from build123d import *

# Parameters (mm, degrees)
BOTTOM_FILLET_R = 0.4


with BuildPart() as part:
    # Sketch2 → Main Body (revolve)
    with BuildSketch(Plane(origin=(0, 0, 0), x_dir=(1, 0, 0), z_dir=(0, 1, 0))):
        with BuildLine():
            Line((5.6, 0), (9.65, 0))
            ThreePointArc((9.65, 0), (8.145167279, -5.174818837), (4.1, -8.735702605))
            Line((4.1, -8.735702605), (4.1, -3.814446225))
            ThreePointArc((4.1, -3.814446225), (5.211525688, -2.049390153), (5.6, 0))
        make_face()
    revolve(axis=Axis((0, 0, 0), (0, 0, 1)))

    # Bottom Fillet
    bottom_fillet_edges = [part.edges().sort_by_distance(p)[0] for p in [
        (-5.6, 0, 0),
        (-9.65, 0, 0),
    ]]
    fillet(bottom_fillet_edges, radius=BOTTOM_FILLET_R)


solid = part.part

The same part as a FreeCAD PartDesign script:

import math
import FreeCAD as App
import Part
import Sketcher

V = App.Vector


def edges_at(feature, points):
    """Names of the edges that pass closest to the given points."""
    edges = feature.Shape.Edges
    near = lambda p: min(range(len(edges)), key=lambda i: edges[i].distToShape(Part.Vertex(*p))[0])
    return sorted({f"Edge{near(p) + 1}" for p in points})

doc = App.newDocument("Part")
params = doc.addObject("Spreadsheet::Sheet", "Params")
for row, (alias, value) in enumerate([
    ("sketch1_radius", "5.6 mm"),
    ("sketch1_radius2", "9.65 mm"),
    ("revolution_angle", "360 deg"),
    ("fillet_radius", "0.4 mm"),
], start=1):
    params.set(f"A{row}", alias)
    params.set(f"B{row}", "=" + value)
    params.setAlias(f"B{row}", alias)

body = doc.addObject("PartDesign::Body", "Body")

# Sketch on XZ plane
sketch1 = doc.addObject("Sketcher::SketchObject", "Sketch")
body.addObject(sketch1)
sketch1.AttachmentSupport = (doc.XZ_Plane, [""])
sketch1.MapMode = "FlatFace"
sketch1.addGeometry(Part.LineSegment(V(9.7, 0, 0), V(5.6, 0, 0)), False)
sketch1.addGeometry(Part.ArcOfCircle(Part.Circle(V(0, 0, 0), V(0, 0, 1), 5.6), math.radians(0), math.radians(43)), False)
sketch1.addGeometry(Part.LineSegment(V(4.1, 3.8, 0), V(4.1, 8.7, 0)), False)
sketch1.addGeometry(Part.ArcOfCircle(Part.Circle(V(0, 0, 0), V(0, 0, 1), 9.7), math.radians(0), math.radians(65)), False)
sketch1.addConstraint(Sketcher.Constraint("Coincident", 0, 2, 1, 1))
sketch1.addConstraint(Sketcher.Constraint("Coincident", 1, 2, 2, 1))
sketch1.addConstraint(Sketcher.Constraint("Coincident", 2, 2, 3, 2))
sketch1.addConstraint(Sketcher.Constraint("Coincident", 3, 1, 0, 1))
sketch1.addConstraint(Sketcher.Constraint("Horizontal", 0))
sketch1.addConstraint(Sketcher.Constraint("Vertical", 2))
sketch1.addConstraint(Sketcher.Constraint("Coincident", 1, 3, -1, 1))
sketch1.addConstraint(Sketcher.Constraint("Coincident", 3, 3, -1, 1))
sketch1.addConstraint(Sketcher.Constraint("PointOnObject", 0, 2, -1))
sketch1.addConstraint(Sketcher.Constraint("Radius", 1, 5.6))
sketch1.addConstraint(Sketcher.Constraint("Radius", 3, 9.65))
sketch1.addConstraint(Sketcher.Constraint("DistanceX", -1, 1, 1, 2, 4.1))
sketch1.setExpression("Constraints[9]", "Params.sketch1_radius")
sketch1.setExpression("Constraints[10]", "Params.sketch1_radius2")
revolution = doc.addObject("PartDesign::Revolution", "Revolution")
body.addObject(revolution)
revolution.Profile = sketch1
revolution.ReferenceAxis = (sketch1, ["V_Axis"])
revolution.setExpression("Angle", "Params.revolution_angle")
doc.recompute()

fillet = doc.addObject("PartDesign::Fillet", "Fillet")
body.addObject(fillet)
fillet.Base = (revolution, edges_at(revolution, [(-5.6, 0, 0), (-9.65, 0, 0)]))
fillet.setExpression("Radius", "Params.fillet_radius")

doc.recompute()
